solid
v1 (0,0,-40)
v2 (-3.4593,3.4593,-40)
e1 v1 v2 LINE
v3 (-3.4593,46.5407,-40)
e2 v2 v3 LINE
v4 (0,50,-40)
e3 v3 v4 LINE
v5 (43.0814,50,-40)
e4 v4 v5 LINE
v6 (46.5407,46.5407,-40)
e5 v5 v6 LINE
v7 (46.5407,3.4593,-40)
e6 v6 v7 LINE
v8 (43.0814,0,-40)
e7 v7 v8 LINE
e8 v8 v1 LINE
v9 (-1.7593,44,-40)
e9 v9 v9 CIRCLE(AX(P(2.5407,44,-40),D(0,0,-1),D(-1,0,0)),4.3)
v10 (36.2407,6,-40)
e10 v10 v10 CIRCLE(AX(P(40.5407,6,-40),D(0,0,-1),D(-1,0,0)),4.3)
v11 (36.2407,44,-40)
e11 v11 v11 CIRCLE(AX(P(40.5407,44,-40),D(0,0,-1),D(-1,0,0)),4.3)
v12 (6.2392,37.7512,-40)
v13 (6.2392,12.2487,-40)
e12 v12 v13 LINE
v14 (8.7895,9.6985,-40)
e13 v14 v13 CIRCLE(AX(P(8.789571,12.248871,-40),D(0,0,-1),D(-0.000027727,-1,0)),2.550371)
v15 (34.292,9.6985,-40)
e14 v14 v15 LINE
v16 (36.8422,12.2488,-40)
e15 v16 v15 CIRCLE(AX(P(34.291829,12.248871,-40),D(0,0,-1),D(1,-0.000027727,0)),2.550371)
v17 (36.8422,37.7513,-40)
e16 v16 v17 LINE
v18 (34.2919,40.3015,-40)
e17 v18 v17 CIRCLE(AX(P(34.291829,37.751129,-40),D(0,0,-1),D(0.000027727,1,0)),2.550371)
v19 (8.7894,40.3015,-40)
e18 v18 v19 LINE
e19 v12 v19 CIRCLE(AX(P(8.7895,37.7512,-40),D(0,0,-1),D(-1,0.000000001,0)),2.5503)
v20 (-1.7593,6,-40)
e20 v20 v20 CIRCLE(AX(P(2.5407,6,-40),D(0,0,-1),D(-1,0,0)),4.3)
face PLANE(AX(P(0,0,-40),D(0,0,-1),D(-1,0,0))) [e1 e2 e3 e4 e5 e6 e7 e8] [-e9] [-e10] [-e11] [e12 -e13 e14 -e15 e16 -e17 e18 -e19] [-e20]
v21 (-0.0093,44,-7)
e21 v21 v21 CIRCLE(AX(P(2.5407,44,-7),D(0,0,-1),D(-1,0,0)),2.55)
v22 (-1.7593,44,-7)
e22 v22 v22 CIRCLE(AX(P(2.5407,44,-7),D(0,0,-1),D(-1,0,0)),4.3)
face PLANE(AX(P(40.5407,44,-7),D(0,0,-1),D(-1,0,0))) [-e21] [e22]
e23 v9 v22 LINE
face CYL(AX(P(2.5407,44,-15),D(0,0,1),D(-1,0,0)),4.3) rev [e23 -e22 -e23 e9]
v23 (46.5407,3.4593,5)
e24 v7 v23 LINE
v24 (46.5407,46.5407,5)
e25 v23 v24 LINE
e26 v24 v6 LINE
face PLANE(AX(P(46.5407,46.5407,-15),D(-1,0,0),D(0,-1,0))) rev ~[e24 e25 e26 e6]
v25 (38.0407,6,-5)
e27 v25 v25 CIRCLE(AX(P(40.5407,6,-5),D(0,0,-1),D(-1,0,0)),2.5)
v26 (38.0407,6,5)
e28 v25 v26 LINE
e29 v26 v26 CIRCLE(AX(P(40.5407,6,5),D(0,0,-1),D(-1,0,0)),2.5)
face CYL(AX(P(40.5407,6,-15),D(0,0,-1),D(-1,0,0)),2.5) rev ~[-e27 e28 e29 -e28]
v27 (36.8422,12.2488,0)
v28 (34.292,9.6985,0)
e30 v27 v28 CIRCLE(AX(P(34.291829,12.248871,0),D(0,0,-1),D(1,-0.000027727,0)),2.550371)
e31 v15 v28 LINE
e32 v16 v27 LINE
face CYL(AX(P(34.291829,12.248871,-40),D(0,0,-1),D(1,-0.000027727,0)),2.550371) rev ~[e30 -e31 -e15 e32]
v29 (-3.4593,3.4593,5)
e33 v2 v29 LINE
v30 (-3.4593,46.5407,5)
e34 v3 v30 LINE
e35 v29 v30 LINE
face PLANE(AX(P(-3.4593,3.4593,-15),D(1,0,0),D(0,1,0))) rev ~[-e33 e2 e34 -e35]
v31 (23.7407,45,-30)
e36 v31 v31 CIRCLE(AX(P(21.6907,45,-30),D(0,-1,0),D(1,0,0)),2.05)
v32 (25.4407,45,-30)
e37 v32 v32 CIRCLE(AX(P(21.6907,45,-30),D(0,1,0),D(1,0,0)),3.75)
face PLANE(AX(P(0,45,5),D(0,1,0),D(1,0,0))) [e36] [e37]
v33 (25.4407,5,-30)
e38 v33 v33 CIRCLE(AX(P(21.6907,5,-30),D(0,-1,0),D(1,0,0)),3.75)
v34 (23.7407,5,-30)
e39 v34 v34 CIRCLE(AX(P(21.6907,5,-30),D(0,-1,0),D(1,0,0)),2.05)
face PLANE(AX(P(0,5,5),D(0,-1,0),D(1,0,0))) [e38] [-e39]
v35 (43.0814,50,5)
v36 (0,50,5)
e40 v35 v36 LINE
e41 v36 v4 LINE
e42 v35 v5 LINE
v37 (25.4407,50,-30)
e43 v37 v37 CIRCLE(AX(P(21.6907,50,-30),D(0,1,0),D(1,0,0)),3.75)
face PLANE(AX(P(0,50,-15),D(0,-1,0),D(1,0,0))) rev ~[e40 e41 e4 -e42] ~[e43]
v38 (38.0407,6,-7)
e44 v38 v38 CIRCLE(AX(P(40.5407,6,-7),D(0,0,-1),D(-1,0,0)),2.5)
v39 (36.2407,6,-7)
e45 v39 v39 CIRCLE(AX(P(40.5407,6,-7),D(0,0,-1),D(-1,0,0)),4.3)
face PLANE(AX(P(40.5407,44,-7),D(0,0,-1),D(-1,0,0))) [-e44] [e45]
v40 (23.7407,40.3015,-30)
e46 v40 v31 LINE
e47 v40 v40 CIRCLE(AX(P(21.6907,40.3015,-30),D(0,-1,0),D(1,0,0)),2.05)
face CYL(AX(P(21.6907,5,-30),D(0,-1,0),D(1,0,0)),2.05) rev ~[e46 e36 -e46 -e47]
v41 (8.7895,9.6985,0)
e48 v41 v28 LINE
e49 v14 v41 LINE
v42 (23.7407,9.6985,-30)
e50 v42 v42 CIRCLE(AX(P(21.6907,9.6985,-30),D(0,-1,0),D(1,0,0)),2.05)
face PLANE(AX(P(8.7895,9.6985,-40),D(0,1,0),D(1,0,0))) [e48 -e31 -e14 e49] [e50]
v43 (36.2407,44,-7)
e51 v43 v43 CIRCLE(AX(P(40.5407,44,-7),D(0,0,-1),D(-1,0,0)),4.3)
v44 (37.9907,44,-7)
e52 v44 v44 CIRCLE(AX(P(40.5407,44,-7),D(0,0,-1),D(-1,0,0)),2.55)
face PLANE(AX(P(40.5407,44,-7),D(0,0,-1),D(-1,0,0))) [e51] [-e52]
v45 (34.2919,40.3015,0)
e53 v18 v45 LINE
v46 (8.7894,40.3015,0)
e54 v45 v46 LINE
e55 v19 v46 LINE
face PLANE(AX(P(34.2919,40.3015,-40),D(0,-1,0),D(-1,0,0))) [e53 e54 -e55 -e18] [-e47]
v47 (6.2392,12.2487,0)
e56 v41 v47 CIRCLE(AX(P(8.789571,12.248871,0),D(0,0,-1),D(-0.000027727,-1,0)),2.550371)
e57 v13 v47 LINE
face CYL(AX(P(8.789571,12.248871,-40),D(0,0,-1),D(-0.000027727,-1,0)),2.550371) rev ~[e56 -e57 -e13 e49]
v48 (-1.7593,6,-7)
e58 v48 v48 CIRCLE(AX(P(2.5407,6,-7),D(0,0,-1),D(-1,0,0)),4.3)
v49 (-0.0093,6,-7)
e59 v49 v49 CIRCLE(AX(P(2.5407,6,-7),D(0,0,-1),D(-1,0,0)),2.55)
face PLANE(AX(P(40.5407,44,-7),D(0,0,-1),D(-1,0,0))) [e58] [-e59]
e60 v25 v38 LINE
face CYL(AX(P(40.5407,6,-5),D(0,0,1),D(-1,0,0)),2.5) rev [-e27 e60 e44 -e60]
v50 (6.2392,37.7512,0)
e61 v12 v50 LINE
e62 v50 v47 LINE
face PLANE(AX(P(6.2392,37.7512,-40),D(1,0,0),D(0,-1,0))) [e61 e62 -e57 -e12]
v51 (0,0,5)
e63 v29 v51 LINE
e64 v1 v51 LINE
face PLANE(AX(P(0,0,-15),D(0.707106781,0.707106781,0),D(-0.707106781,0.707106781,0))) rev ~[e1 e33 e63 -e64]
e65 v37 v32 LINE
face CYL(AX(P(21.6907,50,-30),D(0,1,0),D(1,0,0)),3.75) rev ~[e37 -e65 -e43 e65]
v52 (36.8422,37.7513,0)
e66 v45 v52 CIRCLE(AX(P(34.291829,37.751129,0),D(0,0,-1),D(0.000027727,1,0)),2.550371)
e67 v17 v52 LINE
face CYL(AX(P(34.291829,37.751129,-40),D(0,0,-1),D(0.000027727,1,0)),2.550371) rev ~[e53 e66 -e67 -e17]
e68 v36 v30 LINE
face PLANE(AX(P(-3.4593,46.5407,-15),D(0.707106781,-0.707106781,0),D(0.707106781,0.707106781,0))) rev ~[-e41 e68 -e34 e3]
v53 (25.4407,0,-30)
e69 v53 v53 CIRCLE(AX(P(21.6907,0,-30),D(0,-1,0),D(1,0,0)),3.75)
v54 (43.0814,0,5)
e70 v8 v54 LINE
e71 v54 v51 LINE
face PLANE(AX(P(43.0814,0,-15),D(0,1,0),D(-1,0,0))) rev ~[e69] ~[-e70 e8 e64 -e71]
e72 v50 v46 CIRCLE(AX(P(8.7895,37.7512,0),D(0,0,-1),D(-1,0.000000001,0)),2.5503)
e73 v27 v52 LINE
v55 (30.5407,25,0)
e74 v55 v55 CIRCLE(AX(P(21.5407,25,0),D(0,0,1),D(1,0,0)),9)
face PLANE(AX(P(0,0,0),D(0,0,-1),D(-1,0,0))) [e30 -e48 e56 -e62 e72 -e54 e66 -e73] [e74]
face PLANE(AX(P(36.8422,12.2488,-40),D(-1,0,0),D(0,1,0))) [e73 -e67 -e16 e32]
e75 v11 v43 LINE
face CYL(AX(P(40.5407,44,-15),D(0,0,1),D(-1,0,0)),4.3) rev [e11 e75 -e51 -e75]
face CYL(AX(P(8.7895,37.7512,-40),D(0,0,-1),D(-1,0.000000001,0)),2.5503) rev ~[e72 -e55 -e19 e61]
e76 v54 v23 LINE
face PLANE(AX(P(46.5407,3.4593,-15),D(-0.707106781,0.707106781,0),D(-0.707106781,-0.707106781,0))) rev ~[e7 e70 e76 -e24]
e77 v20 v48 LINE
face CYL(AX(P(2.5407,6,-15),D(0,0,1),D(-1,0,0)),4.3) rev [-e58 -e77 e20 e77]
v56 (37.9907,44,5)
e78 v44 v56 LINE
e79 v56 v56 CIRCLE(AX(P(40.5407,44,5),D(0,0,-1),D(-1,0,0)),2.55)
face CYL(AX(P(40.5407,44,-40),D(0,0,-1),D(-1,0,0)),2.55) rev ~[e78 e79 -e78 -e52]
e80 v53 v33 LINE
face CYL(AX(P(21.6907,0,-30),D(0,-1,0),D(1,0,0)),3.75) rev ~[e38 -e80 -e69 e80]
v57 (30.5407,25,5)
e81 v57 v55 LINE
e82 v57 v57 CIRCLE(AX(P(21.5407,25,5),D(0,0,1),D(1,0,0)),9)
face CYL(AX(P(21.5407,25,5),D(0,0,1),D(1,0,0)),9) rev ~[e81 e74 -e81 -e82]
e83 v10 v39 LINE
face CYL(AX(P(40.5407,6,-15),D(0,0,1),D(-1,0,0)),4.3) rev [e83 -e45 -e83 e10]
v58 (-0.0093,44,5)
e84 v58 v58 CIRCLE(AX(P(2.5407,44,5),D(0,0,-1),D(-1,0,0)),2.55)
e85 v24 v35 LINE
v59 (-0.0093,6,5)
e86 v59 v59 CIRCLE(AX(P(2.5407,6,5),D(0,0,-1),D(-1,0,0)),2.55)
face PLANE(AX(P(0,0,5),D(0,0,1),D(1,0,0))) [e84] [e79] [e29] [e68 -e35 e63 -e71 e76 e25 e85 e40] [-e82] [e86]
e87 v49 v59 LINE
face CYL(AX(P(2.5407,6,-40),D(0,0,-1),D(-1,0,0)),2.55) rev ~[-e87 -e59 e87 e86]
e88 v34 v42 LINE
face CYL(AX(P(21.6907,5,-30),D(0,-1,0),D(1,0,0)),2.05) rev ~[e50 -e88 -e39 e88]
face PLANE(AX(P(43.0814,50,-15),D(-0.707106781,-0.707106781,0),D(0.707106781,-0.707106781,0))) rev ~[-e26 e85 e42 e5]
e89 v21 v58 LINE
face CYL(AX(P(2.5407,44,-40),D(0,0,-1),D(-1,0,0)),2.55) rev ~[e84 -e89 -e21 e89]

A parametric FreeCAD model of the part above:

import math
import FreeCAD as App
import Part
import Sketcher

V = App.Vector
Q = App.Units.Quantity

doc = App.newDocument("Part")
body = doc.addObject("PartDesign::Body", "Body")

sketch1 = body.newObject("Sketcher::SketchObject", "Sketch")
sketch1.AttachmentSupport = (doc.getObject("XY_Plane"), [""])
sketch1.MapMode = "FlatFace"
sketch1.addGeometry([
    Part.LineSegment(V(-3.4593, 46.5407, 0), V(-3.4593, 3.4593, 0)),
    Part.LineSegment(V(-3.4593, 3.4593, 0), V(0, 0, 0)),
    Part.LineSegment(V(0, 0, 0), V(43.0814, 0, 0)),
    Part.LineSegment(V(43.0814, 0, 0), V(46.5407, 3.4593, 0)),
    Part.LineSegment(V(46.5407, 3.4593, 0), V(46.5407, 46.5407, 0)),
    Part.LineSegment(V(46.5407, 46.5407, 0), V(43.0814, 50, 0)),
    Part.LineSegment(V(43.0814, 50, 0), V(0, 50, 0)),
    Part.LineSegment(V(0, 50, 0), V(-3.4593, 46.5407, 0)),
], False)
sketch1.addConstraint([
    Sketcher.Constraint("Coincident", 0, 2, 1, 1),
    Sketcher.Constraint("Coincident", 1, 2, 2, 1),
    Sketcher.Constraint("Coincident", 2, 2, 3, 1),
    Sketcher.Constraint("Coincident", 3, 2, 4, 1),
    Sketcher.Constraint("Coincident", 4, 2, 5, 1),
    Sketcher.Constraint("Coincident", 5, 2, 6, 1),
    Sketcher.Constraint("Coincident", 6, 2, 7, 1),
    Sketcher.Constraint("Coincident", 7, 2, 0, 1),
    Sketcher.Constraint("Vertical", 0),
    Sketcher.Constraint("Horizontal", 2),
    Sketcher.Constraint("Vertical", 4),
    Sketcher.Constraint("Horizontal", 6),
    Sketcher.Constraint("Coincident", 1, 2, -1, 1),
    Sketcher.Constraint("PointOnObject", 6, 2, -2),
    Sketcher.Constraint("Perpendicular", 1, 3),
    Sketcher.Constraint("Perpendicular", 3, 5),
    Sketcher.Constraint("Perpendicular", 5, 7),
    Sketcher.Constraint("Horizontal", 0, 2, 3, 2),
    Sketcher.Constraint("Horizontal", 4, 2, 7, 2),
    Sketcher.Constraint("Vertical", 2, 2, 5, 2),
    Sketcher.Constraint("Equal", 6, 0),
    Sketcher.Constraint("DistanceY", -1, 1, 5, 2, Q("50 mm")),
    Sketcher.Constraint("DistanceX", 2, 1, 2, 2, Q("43.0814 mm")),
])
pad1 = body.newObject("PartDesign::Pad", "Pad")
pad1.Profile = sketch1
pad1.Length = 5

sketch2 = body.newObject("Sketcher::SketchObject", "Sketch001")
sketch2.AttachmentSupport = (doc.getObject("XY_Plane"), [""])
sketch2.MapMode = "FlatFace"
sketch2.addGeometry([
    Part.LineSegment(V(-3.4593, 46.5407, 0), V(0, 50, 0)),
    Part.LineSegment(V(0, 50, 0), V(43.0814, 50, 0)),
    Part.LineSegment(V(43.0814, 50, 0), V(46.5407, 46.5407, 0)),
    Part.LineSegment(V(46.5407, 46.5407, 0), V(46.5407, 3.4593, 0)),
    Part.LineSegment(V(46.5407, 3.4593, 0), V(43.0814, 0, 0)),
    Part.LineSegment(V(43.0814, 0, 0), V(0, 0, 0)),
    Part.LineSegment(V(0, 0, 0), V(-3.4593, 3.4593, 0)),
    Part.LineSegment(V(-3.4593, 3.4593, 0), V(-3.4593, 46.5407, 0)),
    Part.Circle(V(40.5407, 6, 0), V(0, 0, 1), 2.5),
    Part.Circle(V(2.5407, 6, 0), V(0, 0, 1), 2.5),
    Part.Circle(V(40.5407, 44, 0), V(0, 0, 1), 2.5),
    Part.LineSegment(V(34.0407, 40, 0), V(9.0407, 40, 0)),
    Part.ArcOfCircle(Part.Circle(V(9.0407, 37.5, 0), V(0, 0, 1), 2.5), math.radians(90), math.radians(180)),
    Part.LineSegment(V(6.5407, 37.5, 0), V(6.5407, 12.5, 0)),
    Part.ArcOfCircle(Part.Circle(V(9.0407, 12.5, 0), V(0, 0, 1), 2.5), math.radians(180), math.radians(270)),
    Part.LineSegment(V(9.0407, 10, 0), V(34.0407, 10, 0)),
    Part.ArcOfCircle(Part.Circle(V(34.0407, 12.5, 0), V(0, 0, 1), 2.5), math.radians(-90), math.radians(0)),
    Part.LineSegment(V(36.5407, 12.5, 0), V(36.5407, 37.5, 0)),
    Part.ArcOfCircle(Part.Circle(V(34.0407, 37.5, 0), V(0, 0, 1), 2.5), math.radians(0), math.radians(90)),
    Part.Circle(V(2.5407, 44, 0), V(0, 0, 1), 2.5),
], False)
sketch2.addConstraint([
    Sketcher.Constraint("Coincident", 0, 2, 1, 1),
    Sketcher.Constraint("Coincident", 1, 2, 2, 1),
    Sketcher.Constraint("Coincident", 2, 2, 3, 1),
    Sketcher.Constraint("Coincident", 3, 2, 4, 1),
    Sketcher.Constraint("Coincident", 4, 2, 5, 1),
    Sketcher.Constraint("Coincident", 5, 2, 6, 1),
    Sketcher.Constraint("Coincident", 6, 2, 7, 1),
    Sketcher.Constraint("Coincident", 7, 2, 0, 1),
    Sketcher.Constraint("Tangent", 11, 2, 12, 1),
    Sketcher.Constraint("Tangent", 12, 2, 13, 1),
    Sketcher.Constraint("Tangent", 13, 2, 14, 1),
    Sketcher.Constraint("Tangent", 14, 2, 15, 1),
    Sketcher.Constraint("Tangent", 15, 2, 16, 1),
    Sketcher.Constraint("Tangent", 16, 2, 17, 1),
    Sketcher.Constraint("Tangent", 17, 2, 18, 1),
    Sketcher.Constraint("Tangent", 18, 2, 11, 1),
    Sketcher.Constraint("Horizontal", 1),
    Sketcher.Constraint("Vertical", 3),
    Sketcher.Constraint("Horizontal", 5),
    Sketcher.Constraint("Vertical", 7),
    Sketcher.Constraint("Horizontal", 11),
    Sketcher.Constraint("Vertical", 13),
    Sketcher.Constraint("Horizontal", 15),
    Sketcher.Constraint("Vertical", 17),
    Sketcher.Constraint("Coincident", 5, 2, -1, 1),
    Sketcher.Constraint("Equal", 8, 9),
    Sketcher.Constraint("Equal", 9, 10),
    Sketcher.Constraint("Equal", 10, 12),
    Sketcher.Constraint("Equal", 12, 14),
    Sketcher.Constraint("Equal", 14, 16),
    Sketcher.Constraint("Equal", 16, 18),
    Sketcher.Constraint("Equal", 18, 19),
    Sketcher.Constraint("PointOnObject", 0, 2, -2),
    Sketcher.Constraint("Perpendicular", 0, 2),
    Sketcher.Constraint("Perpendicular", 2, 4),
    Sketcher.Constraint("Perpendicular", 4, 6),
    Sketcher.Constraint("Horizontal", 8, 3, 9, 3),
    Sketcher.Constraint("Horizontal", 10, 3, 19, 3),
    Sketcher.Constraint("Horizontal", 3, 2, 6, 2),
    Sketcher.Constraint("Horizontal", 2, 2, 7, 2),
    Sketcher.Constraint("Vertical", 8, 3, 10, 3),
    Sketcher.Constraint("Vertical", 9, 3, 19, 3),
    Sketcher.Constraint("Vertical", 1, 2, 4, 2),
    Sketcher.Constraint("Equal", 5, 3),
    Sketcher.Constraint("Equal", 15, 13),
    Sketcher.Constraint("Diameter", 8, Q("5 mm")),
    Sketcher.Constraint("DistanceX", 11, 2, 11, 1, Q("25 mm")),
    Sketcher.Constraint("DistanceY", -1, 1, 8, 3, Q("6 mm")),
    Sketcher.Constraint("DistanceY", -1, 1, 10, 3, Q("44 mm")),
    Sketcher.Constraint("DistanceY", -1, 1, 0, 2, Q("50 mm")),
    Sketcher.Constraint("DistanceY", -1, 1, 11, 2, Q("40 mm")),
    Sketcher.Constraint("DistanceX", 9, 3, 8, 3, Q("38 mm")),
    Sketcher.Constraint("DistanceX", 10, 3, 2, 2, Q("6 mm")),
    Sketcher.Constraint("DistanceX", 19, 3, 12, 2, Q("4 mm")),
    Sketcher.Constraint("DistanceX", 1, 1, 1, 2, Q("43.0814 mm")),
])
pad2 = body.newObject("PartDesign::Pad", "Pad001")
pad2.Profile = sketch2
pad2.Length = 15
pad2.Reversed = True

sketch3 = body.newObject("Sketcher::SketchObject", "Sketch002")
sketch3.AttachmentSupport = (doc.getObject("XY_Plane"), [""])
sketch3.MapMode = "FlatFace"
sketch3.AttachmentOffset = App.Placement(V(0, 0, -15), App.Rotation())
sketch3.addGeometry([
    Part.Circle(V(2.5407, 6, 0), V(0, 0, 1), 2.5),
    Part.Circle(V(40.5407, 6, 0), V(0, 0, 1), 2.5),
    Part.Circle(V(40.5407, 44, 0), V(0, 0, 1), 2.5),
    Part.Circle(V(2.5407, 44, 0), V(0, 0, 1), 2.5),
], False)
sketch3.addConstraint([
    Sketcher.Constraint("Equal", 0, 1),
    Sketcher.Constraint("Equal", 1, 2),
    Sketcher.Constraint("Equal", 2, 3),
    Sketcher.Constraint("Horizontal", 0, 3, 1, 3),
    Sketcher.Constraint("Horizontal", 2, 3, 3, 3),
    Sketcher.Constraint("Vertical", 1, 3, 2, 3),
    Sketcher.Constraint("Vertical", 0, 3, 3, 3),
    Sketcher.Constraint("Diameter", 0, Q("5 mm")),
    Sketcher.Constraint("DistanceY", -1, 1, 0, 3, Q("6 mm")),
    Sketcher.Constraint("DistanceY", -1, 1, 2, 3, Q("44 mm")),
    Sketcher.Constraint("DistanceX", 0, 3, 1, 3, Q("38 mm")),
    Sketcher.Constraint("DistanceX", -1, 1, 0, 3, Q("2.5407 mm")),
])
pocket1 = body.newObject("PartDesign::Pocket", "Pocket")
pocket1.Profile = sketch3
pocket1.Length = 100
pocket1.Reversed = True

sketch4 = body.newObject("Sketcher::SketchObject", "Sketch003")
sketch4.AttachmentSupport = (doc.getObject("XY_Plane"), [""])
sketch4.MapMode = "FlatFace"
sketch4.AttachmentOffset = App.Placement(V(0, 0, -15), App.Rotation())
sketch4.addGeometry([
    Part.Circle(V(2.5407, 6, 0), V(0, 0, 1), 4.3),
    Part.Circle(V(40.5407, 6, 0), V(0, 0, 1), 4.3),
    Part.Circle(V(2.5407, 44, 0), V(0, 0, 1), 4.3),
    Part.Circle(V(2.5407, 44, 0), V(0, 0, 1), 2.5),
    Part.Circle(V(40.5407, 44, 0), V(0, 0, 1), 4.3),
], False)
sketch4.addConstraint([
    Sketcher.Constraint("Coincident", 3, 3, 2, 3),
    Sketcher.Constraint("Equal", 0, 1),
    Sketcher.Constraint("Equal", 1, 2),
    Sketcher.Constraint("Equal", 2, 4),
    Sketcher.Constraint("Horizontal", 0, 3, 1, 3),
    Sketcher.Constraint("Horizontal", 3, 3, 4, 3),
    Sketcher.Constraint("Vertical", 0, 3, 2, 3),
    Sketcher.Constraint("Vertical", 1, 3, 4, 3),
    Sketcher.Constraint("Diameter", 0, Q("8.6 mm")),
    Sketcher.Constraint("Diameter", 3, Q("5 mm")),
    Sketcher.Constraint("DistanceY", -1, 1, 0, 3, Q("6 mm")),
    Sketcher.Constraint("DistanceY", -1, 1, 2, 3, Q("44 mm")),
    Sketcher.Constraint("DistanceX", 0, 3, 1, 3, Q("38 mm")),
    Sketcher.Constraint("DistanceX", -1, 1, 0, 3, Q("2.5407 mm")),
])
pocket2 = body.newObject("PartDesign::Pocket", "Pocket001")
pocket2.Profile = sketch4
pocket2.Length = 10
pocket2.Reversed = True

sketch5 = body.newObject("Sketcher::SketchObject", "Sketch004")
sketch5.AttachmentSupport = (doc.getObject("XY_Plane"), [""])
sketch5.MapMode = "FlatFace"
sketch5.AttachmentOffset = App.Placement(V(0, 0, -15), App.Rotation())
sketch5.addGeometry([
    Part.LineSegment(V(-3.4593, 46.5407, 0), V(0, 50, 0)),
    Part.LineSegment(V(0, 50, 0), V(43.0814, 50, 0)),
    Part.LineSegment(V(43.0814, 50, 0), V(46.5407, 46.5407, 0)),
    Part.LineSegment(V(46.5407, 46.5407, 0), V(46.5407, 3.4593, 0)),
    Part.LineSegment(V(46.5407, 3.4593, 0), V(43.0814, 0, 0)),
    Part.LineSegment(V(43.0814, 0, 0), V(0, 0, 0)),
    Part.LineSegment(V(0, 0, 0), V(-3.4593, 3.4593, 0)),
    Part.LineSegment(V(-3.4593, 3.4593, 0), V(-3.4593, 46.5407, 0)),
    Part.Circle(V(40.5407, 6, 0), V(0, 0, 1), 4.3),
    Part.Circle(V(2.5407, 6, 0), V(0, 0, 1), 4.3),
    Part.Circle(V(40.5407, 44, 0), V(0, 0, 1), 4.3),
    Part.ArcOfCircle(Part.Circle(V(9.0407, 12.5, 0), V(0, 0, 1), 2.5), math.radians(180), math.radians(270)),
    Part.LineSegment(V(9.0407, 10, 0), V(34.0407, 10, 0)),
    Part.ArcOfCircle(Part.Circle(V(34.0407, 12.5, 0), V(0, 0, 1), 2.5), math.radians(-90), math.radians(0)),
    Part.LineSegment(V(36.5407, 12.5, 0), V(36.5407, 37.5, 0)),
    Part.ArcOfCircle(Part.Circle(V(34.0407, 37.5, 0), V(0, 0, 1), 2.5), math.radians(0), math.radians(90)),
    Part.LineSegment(V(34.0407, 40, 0), V(9.0407, 40, 0)),
    Part.ArcOfCircle(Part.Circle(V(9.0407, 37.5, 0), V(0, 0, 1), 2.5), math.radians(90), math.radians(180)),
    Part.LineSegment(V(6.5407, 37.5, 0), V(6.5407, 12.5, 0)),
    Part.Circle(V(2.5407, 44, 0), V(0, 0, 1), 4.3),
], False)
sketch5.addConstraint([
    Sketcher.Constraint("Coincident", 0, 2, 1, 1),
    Sketcher.Constraint("Coincident", 1, 2, 2, 1),
    Sketcher.Constraint("Coincident", 2, 2, 3, 1),
    Sketcher.Constraint("Coincident", 3, 2, 4, 1),
    Sketcher.Constraint("Coincident", 4, 2, 5, 1),
    Sketcher.Constraint("Coincident", 5, 2, 6, 1),
    Sketcher.Constraint("Coincident", 6, 2, 7, 1),
    Sketcher.Constraint("Coincident", 7, 2, 0, 1),
    Sketcher.Constraint("Tangent", 11, 2, 12, 1),
    Sketcher.Constraint("Tangent", 12, 2, 13, 1),
    Sketcher.Constraint("Tangent", 13, 2, 14, 1),
    Sketcher.Constraint("Tangent", 14, 2, 15, 1),
    Sketcher.Constraint("Tangent", 15, 2, 16, 1),
    Sketcher.Constraint("Tangent", 16, 2, 17, 1),
    Sketcher.Constraint("Tangent", 17, 2, 18, 1),
    Sketcher.Constraint("Tangent", 18, 2, 11, 1),
    Sketcher.Constraint("Horizontal", 1),
    Sketcher.Constraint("Vertical", 3),
    Sketcher.Constraint("Horizontal", 5),
    Sketcher.Constraint("Vertical", 7),
    Sketcher.Constraint("Horizontal", 12),
    Sketcher.Constraint("Vertical", 14),
    Sketcher.Constraint("Horizontal", 16),
    Sketcher.Constraint("Vertical", 18),
    Sketcher.Constraint("Coincident", 5, 2, -1, 1),
    Sketcher.Constraint("Equal", 8, 9),
    Sketcher.Constraint("Equal", 9, 10),
    Sketcher.Constraint("Equal", 11, 13),
    Sketcher.Constraint("Equal", 13, 15),
    Sketcher.Constraint("Equal", 15, 17),
    Sketcher.Constraint("Equal", 10, 19),
    Sketcher.Constraint("PointOnObject", 0, 2, -2),
    Sketcher.Constraint("Perpendicular", 0, 2),
    Sketcher.Constraint("Perpendicular", 2, 4),
    Sketcher.Constraint("Perpendicular", 4, 6),
    Sketcher.Constraint("Horizontal", 8, 3, 9, 3),
    Sketcher.Constraint("Horizontal", 10, 3, 19, 3),
    Sketcher.Constraint("Horizontal", 3, 2, 6, 2),
    Sketcher.Constraint("Horizontal", 2, 2, 7, 2),
    Sketcher.Constraint("Vertical", 8, 3, 10, 3),
    Sketcher.Constraint("Vertical", 9, 3, 19, 3),
    Sketcher.Constraint("Vertical", 1, 2, 4, 2),
    Sketcher.Constraint("Equal", 5, 3),
    Sketcher.Constraint("Equal", 16, 14),
    Sketcher.Constraint("Diameter", 8, Q("8.6 mm")),
    Sketcher.Constraint("Radius", 11, Q("2.5 mm")),
    Sketcher.Constraint("DistanceX", 12, 1, 12, 2, Q("25 mm")),
    Sketcher.Constraint("DistanceY", -1, 1, 8, 3, Q("6 mm")),
    Sketcher.Constraint("DistanceY", -1, 1, 10, 3, Q("44 mm")),
    Sketcher.Constraint("DistanceY", -1, 1, 0, 2, Q("50 mm")),
    Sketcher.Constraint("DistanceY", -1, 1, 11, 2, Q("10 mm")),
    Sketcher.Constraint("DistanceX", 9, 3, 8, 3, Q("38 mm")),
    Sketcher.Constraint("DistanceX", 10, 3, 2, 2, Q("6 mm")),
    Sketcher.Constraint("DistanceX", 13, 2, 8, 3, Q("4 mm")),
    Sketcher.Constraint("DistanceX", 1, 1, 1, 2, Q("43.0814 mm")),
])
pad3 = body.newObject("PartDesign::Pad", "Pad002")
pad3.Profile = sketch5
pad3.Length = 25
pad3.Reversed = True

sketch6 = body.newObject("Sketcher::SketchObject", "Sketch005")
sketch6.AttachmentSupport = (doc.getObject("XZ_Plane"), [""])
sketch6.MapMode = "FlatFace"
sketch6.AttachmentOffset = App.Placement(V(0, 0, -50), App.Rotation())
sketch6.addGeometry(Part.Circle(V(21.6907, -30, 0), V(0, 0, 1), 2), False)
sketch6.addConstraint([
    Sketcher.Constraint("Diameter", 0, Q("4 mm")),
    Sketcher.Constraint("DistanceY", 0, 3, -1, 1, Q("30 mm")),
    Sketcher.Constraint("DistanceX", -1, 1, 0, 3, Q("21.6907 mm")),
])
pocket3 = body.newObject("PartDesign::Pocket", "Pocket002")
pocket3.Profile = sketch6
pocket3.Length = 500
pocket3.Reversed = True

sketch7 = body.newObject("Sketcher::SketchObject", "Sketch006")
sketch7.AttachmentSupport = (doc.getObject("XZ_Plane"), [""])
sketch7.MapMode = "FlatFace"
sketch7.AttachmentOffset = App.Placement(V(0, 0, -50), App.Rotation())
sketch7.addGeometry(Part.Circle(V(21.6907, -30, 0), V(0, 0, 1), 3.75), False)
sketch7.addConstraint([
    Sketcher.Constraint("Diameter", 0, Q("7.5 mm")),
    Sketcher.Constraint("DistanceY", 0, 3, -1, 1, Q("30 mm")),
    Sketcher.Constraint("DistanceX", -1, 1, 0, 3, Q("21.6907 mm")),
])
pocket4 = body.newObject("PartDesign::Pocket", "Pocket003")
pocket4.Profile = sketch7
pocket4.Length = 5
pocket4.Reversed = True

sketch8 = body.newObject("Sketcher::SketchObject", "Sketch007")
sketch8.AttachmentSupport = (doc.getObject("XZ_Plane"), [""])
sketch8.MapMode = "FlatFace"
sketch8.addGeometry([
    Part.Circle(V(21.6907, -30, 0), V(0, 0, 1), 3.75),
    Part.Circle(V(21.6907, -30, 0), V(0, 0, 1), 2),
], False)
sketch8.addConstraint([
    Sketcher.Constraint("Coincident", 1, 3, 0, 3),
    Sketcher.Constraint("Diameter", 0, Q("7.5 mm")),
    Sketcher.Constraint("Diameter", 1, Q("4 mm")),
    Sketcher.Constraint("DistanceY", 0, 3, -1, 1, Q("30 mm")),
    Sketcher.Constraint("DistanceX", -1, 1, 0, 3, Q("21.6907 mm")),
])
pocket5 = body.newObject("PartDesign::Pocket", "Pocket004")
pocket5.Profile = sketch8
pocket5.Length = 5

sketch9 = body.newObject("Sketcher::SketchObject", "Sketch008")
sketch9.AttachmentSupport = (doc.getObject("XY_Plane"), [""])
sketch9.MapMode = "FlatFace"
sketch9.AttachmentOffset = App.Placement(V(0, 0, 5), App.Rotation())
sketch9.addGeometry(Part.Circle(V(21.5407, 25, 0), V(0, 0, 1), 9), False)
sketch9.addConstraint([
    Sketcher.Constraint("Diameter", 0, Q("18 mm")),
    Sketcher.Constraint("DistanceY", -1, 1, 0, 3, Q("25 mm")),
    Sketcher.Constraint("DistanceX", -1, 1, 0, 3, Q("21.5407 mm")),
])
pocket6 = body.newObject("PartDesign::Pocket", "Pocket005")
pocket6.Profile = sketch9
pocket6.Length = 20

sketch10 = body.newObject("Sketcher::SketchObject", "Sketch009")
sketch10.AttachmentSupport = (doc.getObject("XY_Plane"), [""])
sketch10.MapMode = "FlatFace"
sketch10.AttachmentOffset = App.Placement(V(0, 0, -40), App.Rotation())
sketch10.addGeometry([
    Part.LineSegment(V(6.3007, 12.3, 0), V(6.3007, 37.7, 0)),
    Part.ArcOfCircle(Part.Circle(V(8.8407, 37.7, 0), V(0, 0, 1), 2.54), math.radians(90), math.radians(180)),
    Part.LineSegment(V(8.8407, 40.24, 0), V(34.2407, 40.24, 0)),
    Part.ArcOfCircle(Part.Circle(V(34.2407, 37.7, 0), V(0, 0, 1), 2.54), math.radians(0), math.radians(90)),
    Part.LineSegment(V(36.7807, 37.7, 0), V(36.7807, 12.3, 0)),
    Part.ArcOfCircle(Part.Circle(V(34.2407, 12.3, 0), V(0, 0, 1), 2.54), math.radians(-90), math.radians(0)),
    Part.LineSegment(V(34.2407, 9.76, 0), V(8.8407, 9.76, 0)),
    Part.ArcOfCircle(Part.Circle(V(8.8407, 12.3, 0), V(0, 0, 1), 2.54), math.radians(180), math.radians(270)),
    Part.ArcOfCircle(Part.Circle(V(9.0407, 37.5, 0), V(0, 0, 1), 2.5), math.radians(90), math.radians(180)),
    Part.LineSegment(V(6.5407, 37.5, 0), V(6.5407, 12.5, 0)),
    Part.ArcOfCircle(Part.Circle(V(9.0407, 12.5, 0), V(0, 0, 1), 2.5), math.radians(180), math.radians(270)),
    Part.LineSegment(V(9.0407, 10, 0), V(34.0407, 10, 0)),
    Part.ArcOfCircle(Part.Circle(V(34.0407, 12.5, 0), V(0, 0, 1), 2.5), math.radians(-90), math.radians(0)),
    Part.LineSegment(V(36.5407, 12.5, 0), V(36.5407, 37.5, 0)),
    Part.ArcOfCircle(Part.Circle(V(34.0407, 37.5, 0), V(0, 0, 1), 2.5), math.radians(0), math.radians(90)),
    Part.LineSegment(V(34.0407, 40, 0), V(9.0407, 40, 0)),
], False)
sketch10.addConstraint([
    Sketcher.Constraint("Tangent", 0, 2, 1, 2),
    Sketcher.Constraint("Tangent", 1, 1, 2, 1),
    Sketcher.Constraint("Tangent", 2, 2, 3, 2),
    Sketcher.Constraint("Tangent", 3, 1, 4, 1),
    Sketcher.Constraint("Tangent", 4, 2, 5, 2),
    Sketcher.Constraint("Tangent", 5, 1, 6, 1),
    Sketcher.Constraint("Tangent", 6, 2, 7, 2),
    Sketcher.Constraint("Tangent", 7, 1, 0, 1),
    Sketcher.Constraint("Tangent", 8, 2, 9, 1),
    Sketcher.Constraint("Tangent", 9, 2, 10, 1),
    Sketcher.Constraint("Tangent", 10, 2, 11, 1),
    Sketcher.Constraint("Tangent", 11, 2, 12, 1),
    Sketcher.Constraint("Tangent", 12, 2, 13, 1),
    Sketcher.Constraint("Tangent", 13, 2, 14, 1),
    Sketcher.Constraint("Tangent", 14, 2, 15, 1),
    Sketcher.Constraint("Tangent", 15, 2, 8, 1),
    Sketcher.Constraint("Vertical", 0),
    Sketcher.Constraint("Horizontal", 2),
    Sketcher.Constraint("Vertical", 4),
    Sketcher.Constraint("Horizontal", 6),
    Sketcher.Constraint("Vertical", 9),
    Sketcher.Constraint("Horizontal", 11),
    Sketcher.Constraint("Vertical", 13),
    Sketcher.Constraint("Horizontal", 15),
    Sketcher.Constraint("Equal", 1, 3),
    Sketcher.Constraint("Equal", 3, 5),
    Sketcher.Constraint("Equal", 5, 7),
    Sketcher.Constraint("Equal", 8, 10),
    Sketcher.Constraint("Equal", 10, 12),
    Sketcher.Constraint("Equal", 12, 14),
    Sketcher.Constraint("Equal", 6, 0),
    Sketcher.Constraint("Equal", 15, 9),
    Sketcher.Constraint("Radius", 8, Q("2.5 mm")),
    Sketcher.Constraint("DistanceX", 11, 1, 11, 2, Q("25 mm")),
    Sketcher.Constraint("Radius", 1, Q("2.54 mm")),
    Sketcher.Constraint("DistanceX", 2, 1, 2, 2, Q("25.4 mm")),
    Sketcher.Constraint("DistanceY", -1, 1, 10, 2, Q("10 mm")),
    Sketcher.Constraint("DistanceY", -1, 1, 1, 3, Q("37.7 mm")),
    Sketcher.Constraint("DistanceX", 1, 3, 8, 3, Q("0.2 mm")),
    Sketcher.Constraint("DistanceX", -1, 1, 1, 3, Q("8.8407 mm")),
])
pocket7 = body.newObject("PartDesign::Pocket", "Pocket006")
pocket7.Profile = sketch10
pocket7.Length = 40
pocket7.Reversed = True

sketch11 = body.newObject("Sketcher::SketchObject", "Sketch010")
sketch11.AttachmentSupport = (doc.getObject("XY_Plane"), [""])
sketch11.MapMode = "FlatFace"
sketch11.AttachmentOffset = App.Placement(V(0, 0, -5), App.Rotation())
sketch11.addGeometry([
    Part.Circle(V(2.5407, 6, 0), V(0, 0, 1), 4.3),
    Part.Circle(V(2.5407, 6, 0), V(0, 0, 1), 2.5),
    Part.Circle(V(40.5407, 6, 0), V(0, 0, 1), 4.3),
    Part.Circle(V(40.5407, 6, 0), V(0, 0, 1), 2.5),
    Part.Circle(V(40.5407, 44, 0), V(0, 0, 1), 4.3),
    Part.Circle(V(40.5407, 44, 0), V(0, 0, 1), 2.5),
    Part.Circle(V(2.5407, 44, 0), V(0, 0, 1), 4.3),
    Part.Circle(V(2.5407, 44, 0), V(0, 0, 1), 2.5),
], False)
sketch11.addConstraint([
    Sketcher.Constraint("Coincident", 1, 3, 0, 3),
    Sketcher.Constraint("Coincident", 3, 3, 2, 3),
    Sketcher.Constraint("Coincident", 5, 3, 4, 3),
    Sketcher.Constraint("Coincident", 7, 3, 6, 3),
    Sketcher.Constraint("Equal", 0, 2),
    Sketcher.Constraint("Equal", 1, 3),
    Sketcher.Constraint("Equal", 2, 4),
    Sketcher.Constraint("Equal", 3, 5),
    Sketcher.Constraint("Equal", 4, 6),
    Sketcher.Constraint("Equal", 5, 7),
    Sketcher.Constraint("Horizontal", 1, 3, 2, 3),
    Sketcher.Constraint("Horizontal", 5, 3, 6, 3),
    Sketcher.Constraint("Vertical", 3, 3, 4, 3),
    Sketcher.Constraint("Vertical", 1, 3, 6, 3),
    Sketcher.Constraint("Diameter", 1, Q("5 mm")),
    Sketcher.Constraint("Diameter", 0, Q("8.6 mm")),
    Sketcher.Constraint("DistanceY", -1, 1, 0, 3, Q("6 mm")),
    Sketcher.Constraint("DistanceY", -1, 1, 4, 3, Q("44 mm")),
    Sketcher.Constraint("DistanceX", 0, 3, 2, 3, Q("38 mm")),
    Sketcher.Constraint("DistanceX", -1, 1, 0, 3, Q("2.5407 mm")),
])
pad4 = body.newObject("PartDesign::Pad", "Pad003")
pad4.Profile = sketch11
pad4.Length = 2
pad4.Reversed = True

sketch12 = body.newObject("Sketcher::SketchObject", "Sketch011")
sketch12.AttachmentSupport = (doc.getObject("XY_Plane"), [""])
sketch12.MapMode = "FlatFace"
sketch12.AttachmentOffset = App.Placement(V(0, 0, -40), App.Rotation())
sketch12.addGeometry([
    Part.LineSegment(V(8.8407, 40.24, 0), V(34.2407, 40.24, 0)),
    Part.ArcOfCircle(Part.Circle(V(34.2407, 37.7, 0), V(0, 0, 1), 2.54), math.radians(0), math.radians(90)),
    Part.LineSegment(V(36.7807, 37.7, 0), V(36.7807, 12.3, 0)),
    Part.ArcOfCircle(Part.Circle(V(34.2407, 12.3, 0), V(0, 0, 1), 2.54), math.radians(-90), math.radians(0)),
    Part.LineSegment(V(34.2407, 9.76, 0), V(8.8407, 9.76, 0)),
    Part.ArcOfCircle(Part.Circle(V(8.8407, 12.3, 0), V(0, 0, 1), 2.54), math.radians(180), math.radians(270)),
    Part.LineSegment(V(6.3007, 12.3, 0), V(6.3007, 37.7, 0)),
    Part.ArcOfCircle(Part.Circle(V(8.8407, 37.7, 0), V(0, 0, 1), 2.54), math.radians(90), math.radians(180)),
    Part.ArcOfCircle(Part.Circle(V(34.124, 37.5833, 0), V(0, 0, 1), 2.5167), math.radians(0), math.radians(90)),
    Part.LineSegment(V(34.124, 40.1, 0), V(8.9574, 40.1, 0)),
    Part.ArcOfCircle(Part.Circle(V(8.9574, 37.5833, 0), V(0, 0, 1), 2.5167), math.radians(90), math.radians(180)),
    Part.LineSegment(V(6.4407, 37.5833, 0), V(6.4407, 12.4167, 0)),
    Part.ArcOfCircle(Part.Circle(V(8.9574, 12.4167, 0), V(0, 0, 1), 2.5167), math.radians(180), math.radians(270)),
    Part.LineSegment(V(8.9574, 9.9, 0), V(34.124, 9.9, 0)),
    Part.ArcOfCircle(Part.Circle(V(34.124, 12.4167, 0), V(0, 0, 1), 2.5167), math.radians(-90), math.radians(0)),
    Part.LineSegment(V(36.6407, 12.4167, 0), V(36.6407, 37.5833, 0)),
], False)
sketch12.addConstraint([
    Sketcher.Constraint("Tangent", 0, 2, 1, 2),
    Sketcher.Constraint("Tangent", 1, 1, 2, 1),
    Sketcher.Constraint("Tangent", 2, 2, 3, 2),
    Sketcher.Constraint("Tangent", 3, 1, 4, 1),
    Sketcher.Constraint("Tangent", 4, 2, 5, 2),
    Sketcher.Constraint("Tangent", 5, 1, 6, 1),
    Sketcher.Constraint("Tangent", 6, 2, 7, 2),
    Sketcher.Constraint("Tangent", 7, 1, 0, 1),
    Sketcher.Constraint("Tangent", 8, 2, 9, 1),
    Sketcher.Constraint("Tangent", 9, 2, 10, 1),
    Sketcher.Constraint("Tangent", 10, 2, 11, 1),
    Sketcher.Constraint("Tangent", 11, 2, 12, 1),
    Sketcher.Constraint("Tangent", 12, 2, 13, 1),
    Sketcher.Constraint("Tangent", 13, 2, 14, 1),
    Sketcher.Constraint("Tangent", 14, 2, 15, 1),
    Sketcher.Constraint("Tangent", 15, 2, 8, 1),
    Sketcher.Constraint("Horizontal", 0),
    Sketcher.Constraint("Vertical", 2),
    Sketcher.Constraint("Horizontal", 4),
    Sketcher.Constraint("Vertical", 6),
    Sketcher.Constraint("Horizontal", 9),
    Sketcher.Constraint("Vertical", 11),
    Sketcher.Constraint("Horizontal", 13),
    Sketcher.Constraint("Vertical", 15),
    Sketcher.Constraint("Equal", 1, 3),
    Sketcher.Constraint("Equal", 3, 5),
    Sketcher.Constraint("Equal", 5, 7),
    Sketcher.Constraint("Equal", 8, 10),
    Sketcher.Constraint("Equal", 10, 12),
    Sketcher.Constraint("Equal", 12, 14),
    Sketcher.Constraint("Equal", 4, 2),
    Sketcher.Constraint("Equal", 13, 11),
    Sketcher.Constraint("Radius", 1, Q("2.54 mm")),
    Sketcher.Constraint("DistanceX", 0, 1, 0, 2, Q("25.4 mm")),
    Sketcher.Constraint("DistanceY", -1, 1, 1, 3, Q("37.7 mm")),
    Sketcher.Constraint("DistanceY", -1, 1, 8, 2, Q("40.1 mm")),
    Sketcher.Constraint("DistanceY", -1, 1, 12, 2, Q("9.9 mm")),
    Sketcher.Constraint("Radius", 8, Q("2.5167 mm")),
    Sketcher.Constraint("DistanceX", 10, 2, 7, 3, Q("2.4 mm")),
    Sketcher.Constraint("DistanceX", -1, 1, 8, 3, Q("34.124 mm")),
])
pad5 = body.newObject("PartDesign::Pad", "Pad004")
pad5.Profile = sketch12
pad5.Length = 40

sketch13 = body.newObject("Sketcher::SketchObject", "Sketch012")
sketch13.AttachmentSupport = (doc.getObject("XZ_Plane"), [""])
sketch13.MapMode = "FlatFace"
sketch13.AttachmentOffset = App.Placement(V(0, 0, -5), App.Rotation())
sketch13.addGeometry(Part.Circle(V(21.6907, -30, 0), V(0, 0, 1), 2.05), False)
sketch13.addConstraint([
    Sketcher.Constraint("Diameter", 0, Q("4.1 mm")),
    Sketcher.Constraint("DistanceY", 0, 3, -1, 1, Q("30 mm")),
    Sketcher.Constraint("DistanceX", -1, 1, 0, 3, Q("21.6907 mm")),
])
pocket8 = body.newObject("PartDesign::Pocket", "Pocket007")
pocket8.Profile = sketch13
pocket8.Length = 100

sketch14 = body.newObject("Sketcher::SketchObject", "Sketch013")
sketch14.AttachmentSupport = (doc.getObject("XY_Plane"), [""])
sketch14.MapMode = "FlatFace"
sketch14.AttachmentOffset = App.Placement(V(0, 0, -40), App.Rotation())
sketch14.addGeometry([
    Part.Circle(V(2.5407, 44, 0), V(0, 0, 1), 2.55),
    Part.Circle(V(2.5407, 6, 0), V(0, 0, 1), 2.55),
    Part.Circle(V(40.5407, 6, 0), V(0, 0, 1), 2.5),
    Part.Circle(V(40.5407, 44, 0), V(0, 0, 1), 2.55),
], False)
sketch14.addConstraint([
    Sketcher.Constraint("Equal", 0, 1),
    Sketcher.Constraint("Equal", 1, 3),
    Sketcher.Constraint("Horizontal", 1, 3, 2, 3),
    Sketcher.Constraint("Horizontal", 0, 3, 3, 3),
    Sketcher.Constraint("Vertical", 0, 3, 1, 3),
    Sketcher.Constraint("Vertical", 2, 3, 3, 3),
    Sketcher.Constraint("Diameter", 0, Q("5.1 mm")),
    Sketcher.Constraint("Diameter", 2, Q("5 mm")),
    Sketcher.Constraint("DistanceY", -1, 1, 0, 3, Q("44 mm")),
    Sketcher.Constraint("DistanceY", -1, 1, 1, 3, Q("6 mm")),
    Sketcher.Constraint("DistanceX", 1, 3, 2, 3, Q("38 mm")),
    Sketcher.Constraint("DistanceX", -1, 1, 0, 3, Q("2.5407 mm")),
])
pocket9 = body.newObject("PartDesign::Pocket", "Pocket008")
pocket9.Profile = sketch14
pocket9.Length = 100
pocket9.Reversed = True

sketch15 = body.newObject("Sketcher::SketchObject", "Sketch014")
sketch15.AttachmentSupport = (doc.getObject("XY_Plane"), [""])
sketch15.MapMode = "FlatFace"
sketch15.AttachmentOffset = App.Placement(V(0, 0, -40), App.Rotation())
sketch15.addGeometry([
    Part.LineSegment(V(8.7894, 40.3015, 0), V(34.2919, 40.3015, 0)),
    Part.ArcOfCircle(Part.Circle(V(34.2919, 37.7513, 0), V(0, 0, 1), 2.5502), math.radians(0), math.radians(90)),
    Part.LineSegment(V(36.8422, 37.7513, 0), V(36.8422, 12.2488, 0)),
    Part.ArcOfCircle(Part.Circle(V(34.292, 12.2488, 0), V(0, 0, 1), 2.5502), math.radians(-90), math.radians(0)),
    Part.LineSegment(V(34.292, 9.6985, 0), V(8.7895, 9.6985, 0)),
    Part.ArcOfCircle(Part.Circle(V(8.7895, 12.2487, 0), V(0, 0, 1), 2.5502), math.radians(180), math.radians(270)),
    Part.LineSegment(V(6.2392, 12.2487, 0), V(6.2392, 37.7512, 0)),
    Part.ArcOfCircle(Part.Circle(V(8.7895, 37.7512, 0), V(0, 0, 1), 2.5503), math.radians(90.002247), math.radians(180)),
], False)
sketch15.addConstraint([
    Sketcher.Constraint("Tangent", 0, 2, 1, 2),
    Sketcher.Constraint("Tangent", 1, 1, 2, 1),
    Sketcher.Constraint("Tangent", 2, 2, 3, 2),
    Sketcher.Constraint("Tangent", 3, 1, 4, 1),
    Sketcher.Constraint("Tangent", 4, 2, 5, 2),
    Sketcher.Constraint("Tangent", 5, 1, 6, 1),
    Sketcher.Constraint("Tangent", 6, 2, 7, 2),
    Sketcher.Constraint("Tangent", 7, 1, 0, 1),
    Sketcher.Constraint("Horizontal", 0),
    Sketcher.Constraint("Vertical", 2),
    Sketcher.Constraint("Horizontal", 4),
    Sketcher.Constraint("Vertical", 6),
    Sketcher.Constraint("Equal", 1, 3),
    Sketcher.Constraint("Equal", 3, 5),
    Sketcher.Constraint("Equal", 5, 7),
    Sketcher.Constraint("Equal", 4, 2),
    Sketcher.Constraint("Radius", 1, Q("2.5502 mm")),
    Sketcher.Constraint("DistanceX", 0, 1, 0, 2, Q("25.5025 mm")),
    Sketcher.Constraint("DistanceX", -1, 1, 1, 3, Q("34.292 mm")),
    Sketcher.Constraint("DistanceY", -1, 1, 1, 3, Q("37.7513 mm")),
])
pocket10 = body.newObject("PartDesign::Pocket", "Pocket009")
pocket10.Profile = sketch15
pocket10.Length = 40
pocket10.Reversed = True

doc.recompute()
